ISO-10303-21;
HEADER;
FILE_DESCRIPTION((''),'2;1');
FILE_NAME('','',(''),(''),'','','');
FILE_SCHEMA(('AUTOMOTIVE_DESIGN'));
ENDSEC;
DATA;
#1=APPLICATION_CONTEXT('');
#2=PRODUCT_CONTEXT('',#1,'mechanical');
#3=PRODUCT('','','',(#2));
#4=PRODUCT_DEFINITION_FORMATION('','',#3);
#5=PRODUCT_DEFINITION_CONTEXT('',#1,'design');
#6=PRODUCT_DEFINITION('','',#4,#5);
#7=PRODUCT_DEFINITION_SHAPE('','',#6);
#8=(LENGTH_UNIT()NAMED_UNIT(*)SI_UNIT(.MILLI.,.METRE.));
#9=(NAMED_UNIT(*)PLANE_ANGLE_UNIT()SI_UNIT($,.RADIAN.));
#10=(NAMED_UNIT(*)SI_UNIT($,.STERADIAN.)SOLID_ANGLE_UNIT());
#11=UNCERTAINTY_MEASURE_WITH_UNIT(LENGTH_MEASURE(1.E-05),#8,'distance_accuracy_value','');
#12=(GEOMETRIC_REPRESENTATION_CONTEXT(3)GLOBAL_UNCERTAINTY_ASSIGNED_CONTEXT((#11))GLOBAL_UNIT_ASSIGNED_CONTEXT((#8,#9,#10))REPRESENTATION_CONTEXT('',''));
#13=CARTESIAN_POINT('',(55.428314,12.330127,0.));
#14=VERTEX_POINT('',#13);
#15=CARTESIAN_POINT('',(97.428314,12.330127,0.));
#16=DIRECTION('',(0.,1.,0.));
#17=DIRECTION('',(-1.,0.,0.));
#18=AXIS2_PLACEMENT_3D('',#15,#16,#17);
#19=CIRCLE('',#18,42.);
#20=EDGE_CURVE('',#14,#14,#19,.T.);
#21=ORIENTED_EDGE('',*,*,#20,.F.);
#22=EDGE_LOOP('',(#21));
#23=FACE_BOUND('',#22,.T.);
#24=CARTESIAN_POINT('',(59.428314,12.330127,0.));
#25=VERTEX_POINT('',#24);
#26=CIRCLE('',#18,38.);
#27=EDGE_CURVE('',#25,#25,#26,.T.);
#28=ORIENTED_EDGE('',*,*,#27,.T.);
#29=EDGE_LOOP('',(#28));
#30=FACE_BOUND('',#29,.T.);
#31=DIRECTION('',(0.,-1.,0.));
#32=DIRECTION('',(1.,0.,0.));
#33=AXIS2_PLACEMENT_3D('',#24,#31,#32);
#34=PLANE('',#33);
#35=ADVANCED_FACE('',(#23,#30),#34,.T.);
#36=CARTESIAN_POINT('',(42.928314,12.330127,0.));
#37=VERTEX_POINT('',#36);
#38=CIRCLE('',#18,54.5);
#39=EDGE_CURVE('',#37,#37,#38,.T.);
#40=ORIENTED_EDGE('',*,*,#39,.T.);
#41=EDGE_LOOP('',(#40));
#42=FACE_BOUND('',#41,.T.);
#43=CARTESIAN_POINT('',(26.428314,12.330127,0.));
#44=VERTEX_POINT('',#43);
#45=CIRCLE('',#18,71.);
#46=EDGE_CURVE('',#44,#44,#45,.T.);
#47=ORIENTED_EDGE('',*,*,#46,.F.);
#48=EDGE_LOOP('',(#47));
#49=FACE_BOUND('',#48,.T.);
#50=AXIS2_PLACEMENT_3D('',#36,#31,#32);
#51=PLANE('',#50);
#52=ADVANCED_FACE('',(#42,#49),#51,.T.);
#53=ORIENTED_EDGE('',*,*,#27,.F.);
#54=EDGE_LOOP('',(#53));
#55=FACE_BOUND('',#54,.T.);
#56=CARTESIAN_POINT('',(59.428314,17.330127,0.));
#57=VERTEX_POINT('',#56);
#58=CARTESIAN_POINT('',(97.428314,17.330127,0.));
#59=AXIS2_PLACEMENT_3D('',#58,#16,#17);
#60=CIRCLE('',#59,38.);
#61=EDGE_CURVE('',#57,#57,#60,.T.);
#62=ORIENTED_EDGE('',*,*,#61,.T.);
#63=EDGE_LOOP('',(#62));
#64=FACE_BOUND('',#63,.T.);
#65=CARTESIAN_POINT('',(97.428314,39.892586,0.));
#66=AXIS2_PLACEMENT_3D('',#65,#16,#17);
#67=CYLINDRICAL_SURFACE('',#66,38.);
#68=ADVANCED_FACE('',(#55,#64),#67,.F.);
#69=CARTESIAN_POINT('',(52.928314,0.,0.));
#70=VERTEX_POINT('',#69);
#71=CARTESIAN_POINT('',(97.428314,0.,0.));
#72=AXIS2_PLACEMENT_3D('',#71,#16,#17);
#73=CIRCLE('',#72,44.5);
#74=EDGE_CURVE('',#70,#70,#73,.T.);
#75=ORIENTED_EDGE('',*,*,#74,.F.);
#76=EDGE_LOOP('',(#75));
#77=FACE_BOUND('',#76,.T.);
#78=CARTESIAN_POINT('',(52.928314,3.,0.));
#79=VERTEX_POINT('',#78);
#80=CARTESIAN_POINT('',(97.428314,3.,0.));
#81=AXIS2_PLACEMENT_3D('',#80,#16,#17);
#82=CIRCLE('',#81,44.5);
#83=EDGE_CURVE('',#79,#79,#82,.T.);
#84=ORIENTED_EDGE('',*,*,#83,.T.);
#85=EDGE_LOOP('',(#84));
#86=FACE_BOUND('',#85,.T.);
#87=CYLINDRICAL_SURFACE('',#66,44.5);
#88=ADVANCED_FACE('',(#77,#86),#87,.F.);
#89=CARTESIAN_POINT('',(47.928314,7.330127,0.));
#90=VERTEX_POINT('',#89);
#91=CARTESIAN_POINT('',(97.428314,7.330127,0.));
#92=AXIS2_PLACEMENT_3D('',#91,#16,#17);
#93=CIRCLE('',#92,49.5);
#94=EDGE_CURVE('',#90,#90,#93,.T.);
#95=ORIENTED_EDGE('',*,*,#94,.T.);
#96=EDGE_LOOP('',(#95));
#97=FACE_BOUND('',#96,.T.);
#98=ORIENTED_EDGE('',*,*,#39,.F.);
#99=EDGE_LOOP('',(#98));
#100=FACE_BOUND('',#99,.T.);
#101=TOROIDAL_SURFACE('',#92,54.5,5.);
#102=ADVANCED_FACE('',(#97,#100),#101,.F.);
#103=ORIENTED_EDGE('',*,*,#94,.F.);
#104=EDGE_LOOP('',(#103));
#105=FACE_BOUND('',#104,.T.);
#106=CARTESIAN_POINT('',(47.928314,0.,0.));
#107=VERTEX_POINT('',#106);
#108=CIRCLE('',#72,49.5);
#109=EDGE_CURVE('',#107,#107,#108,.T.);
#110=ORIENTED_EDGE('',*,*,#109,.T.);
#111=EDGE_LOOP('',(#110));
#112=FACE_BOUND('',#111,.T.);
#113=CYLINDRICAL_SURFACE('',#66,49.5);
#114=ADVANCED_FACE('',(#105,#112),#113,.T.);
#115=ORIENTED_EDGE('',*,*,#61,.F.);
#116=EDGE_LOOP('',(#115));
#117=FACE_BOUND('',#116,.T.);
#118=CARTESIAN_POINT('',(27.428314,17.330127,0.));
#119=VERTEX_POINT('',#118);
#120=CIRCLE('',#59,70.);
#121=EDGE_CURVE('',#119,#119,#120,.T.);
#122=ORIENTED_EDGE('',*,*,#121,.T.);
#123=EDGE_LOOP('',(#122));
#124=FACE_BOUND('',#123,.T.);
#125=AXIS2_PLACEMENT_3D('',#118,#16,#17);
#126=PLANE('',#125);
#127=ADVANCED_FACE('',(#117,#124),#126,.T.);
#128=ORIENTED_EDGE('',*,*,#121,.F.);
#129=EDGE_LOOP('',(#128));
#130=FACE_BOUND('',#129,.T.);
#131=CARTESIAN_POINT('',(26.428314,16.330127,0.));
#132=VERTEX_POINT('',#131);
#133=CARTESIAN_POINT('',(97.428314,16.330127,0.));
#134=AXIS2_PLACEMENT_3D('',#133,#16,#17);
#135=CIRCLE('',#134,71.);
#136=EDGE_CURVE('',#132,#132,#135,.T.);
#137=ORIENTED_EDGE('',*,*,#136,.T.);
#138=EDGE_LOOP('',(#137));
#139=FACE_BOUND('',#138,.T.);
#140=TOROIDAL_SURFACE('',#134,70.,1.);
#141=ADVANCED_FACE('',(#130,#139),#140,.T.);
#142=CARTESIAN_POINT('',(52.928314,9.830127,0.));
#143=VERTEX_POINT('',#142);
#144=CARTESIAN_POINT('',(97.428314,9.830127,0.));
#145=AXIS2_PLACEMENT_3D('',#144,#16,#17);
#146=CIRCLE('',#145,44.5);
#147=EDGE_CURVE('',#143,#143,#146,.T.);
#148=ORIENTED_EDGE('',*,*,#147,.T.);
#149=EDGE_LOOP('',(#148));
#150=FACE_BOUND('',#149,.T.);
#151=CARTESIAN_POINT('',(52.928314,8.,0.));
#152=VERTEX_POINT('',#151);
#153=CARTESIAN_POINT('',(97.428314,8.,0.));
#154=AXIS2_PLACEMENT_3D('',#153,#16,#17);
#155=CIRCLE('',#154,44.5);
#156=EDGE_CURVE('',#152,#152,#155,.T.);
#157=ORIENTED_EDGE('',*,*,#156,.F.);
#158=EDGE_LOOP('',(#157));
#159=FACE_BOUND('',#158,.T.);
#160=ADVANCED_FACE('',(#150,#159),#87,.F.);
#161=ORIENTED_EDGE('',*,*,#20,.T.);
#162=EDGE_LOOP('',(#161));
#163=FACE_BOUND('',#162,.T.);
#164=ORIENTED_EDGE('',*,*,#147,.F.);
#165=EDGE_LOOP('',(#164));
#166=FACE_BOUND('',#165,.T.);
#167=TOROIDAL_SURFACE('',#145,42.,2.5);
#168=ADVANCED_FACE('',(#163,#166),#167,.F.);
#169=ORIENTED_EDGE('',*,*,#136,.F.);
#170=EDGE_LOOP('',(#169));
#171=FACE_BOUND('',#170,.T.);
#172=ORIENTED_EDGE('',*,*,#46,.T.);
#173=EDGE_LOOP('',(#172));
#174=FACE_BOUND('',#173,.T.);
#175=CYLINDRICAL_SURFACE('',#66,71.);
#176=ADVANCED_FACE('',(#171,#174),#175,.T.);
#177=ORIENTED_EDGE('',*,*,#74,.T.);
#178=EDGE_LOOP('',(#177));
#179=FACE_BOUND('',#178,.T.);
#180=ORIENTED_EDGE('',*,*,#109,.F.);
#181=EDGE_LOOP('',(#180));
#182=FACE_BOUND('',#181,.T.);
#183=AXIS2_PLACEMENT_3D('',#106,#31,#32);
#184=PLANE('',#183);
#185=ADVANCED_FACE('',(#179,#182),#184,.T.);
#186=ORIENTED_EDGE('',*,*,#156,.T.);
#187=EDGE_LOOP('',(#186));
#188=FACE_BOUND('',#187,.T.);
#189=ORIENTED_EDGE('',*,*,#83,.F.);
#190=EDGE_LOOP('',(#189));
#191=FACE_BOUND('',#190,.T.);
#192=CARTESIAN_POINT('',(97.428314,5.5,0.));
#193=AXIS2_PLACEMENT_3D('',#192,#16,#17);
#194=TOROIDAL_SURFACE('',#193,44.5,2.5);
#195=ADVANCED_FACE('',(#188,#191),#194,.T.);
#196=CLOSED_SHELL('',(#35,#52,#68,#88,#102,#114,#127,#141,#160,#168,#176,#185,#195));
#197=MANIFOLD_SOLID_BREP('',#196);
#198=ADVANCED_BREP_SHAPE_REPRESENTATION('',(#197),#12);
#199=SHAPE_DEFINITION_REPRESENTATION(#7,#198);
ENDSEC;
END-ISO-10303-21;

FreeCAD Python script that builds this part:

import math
import FreeCAD as App
import Part
import Sketcher

V = App.Vector
Q = App.Units.Quantity

doc = App.newDocument("Part")
body = doc.addObject("PartDesign::Body", "Body")

sketch1 = body.newObject("Sketcher::SketchObject", "Sketch")
sketch1.AttachmentSupport = (doc.getObject("XY_Plane"), [""])
sketch1.MapMode = "FlatFace"
sketch1.addGeometry(Part.LineSegment(V(26.4, 16.3, 0), V(26.4, 12.3, 0)), False)
sketch1.addGeometry(Part.LineSegment(V(26.4, 12.3, 0), V(42.9, 12.3, 0)), False)
sketch1.addGeometry(Part.ArcOfCircle(Part.Circle(V(42.9, 7.3, 0), V(0, 0, 1), 5), math.radians(0), math.radians(90)), False)
sketch1.addGeometry(Part.LineSegment(V(47.9, 7.3, 0), V(47.9, 0, 0)), False)
sketch1.addGeometry(Part.LineSegment(V(47.9, 0, 0), V(52.9, 0, 0)), False)
sketch1.addGeometry(Part.LineSegment(V(52.9, 0, 0), V(52.9, 3, 0)), False)
sketch1.addGeometry(Part.ArcOfCircle(Part.Circle(V(52.9, 5.5, 0), V(0, 0, 1), 2.5), math.radians(-90), math.radians(90)), False)
sketch1.addGeometry(Part.LineSegment(V(52.9, 8, 0), V(52.9, 9.8, 0)), False)
sketch1.addGeometry(Part.ArcOfCircle(Part.Circle(V(55.4, 9.8, 0), V(0, 0, 1), 2.5), math.radians(90), math.radians(180)), False)
sketch1.addGeometry(Part.LineSegment(V(55.4, 12.3, 0), V(59.4, 12.3, 0)), False)
sketch1.addGeometry(Part.LineSegment(V(59.4, 12.3, 0), V(59.4, 17.3, 0)), False)
sketch1.addGeometry(Part.LineSegment(V(59.4, 17.3, 0), V(27.4, 17.3, 0)), False)
sketch1.addGeometry(Part.ArcOfCircle(Part.Circle(V(27.4, 16.3, 0), V(0, 0, 1), 1), math.radians(90), math.radians(180)), False)
sketch1.addGeometry(Part.LineSegment(V(97.4, 17.3, 0), V(97.4, 0, 0)), True)
sketch1.addConstraint(Sketcher.Constraint("Coincident", 0, 2, 1, 1))
sketch1.addConstraint(Sketcher.Constraint("Tangent", 1, 2, 2, 2))
sketch1.addConstraint(Sketcher.Constraint("Tangent", 2, 1, 3, 1))
sketch1.addConstraint(Sketcher.Constraint("Coincident", 3, 2, 4, 1))
sketch1.addConstraint(Sketcher.Constraint("Coincident", 4, 2, 5, 1))
sketch1.addConstraint(Sketcher.Constraint("Coincident", 5, 2, 6, 1))
sketch1.addConstraint(Sketcher.Constraint("Coincident", 6, 2, 7, 1))
sketch1.addConstraint(Sketcher.Constraint("Tangent", 7, 2, 8, 2))
sketch1.addConstraint(Sketcher.Constraint("Tangent", 8, 1, 9, 1))
sketch1.addConstraint(Sketcher.Constraint("Coincident", 9, 2, 10, 1))
sketch1.addConstraint(Sketcher.Constraint("Coincident", 10, 2, 11, 1))
sketch1.addConstraint(Sketcher.Constraint("Tangent", 11, 2, 12, 1))
sketch1.addConstraint(Sketcher.Constraint("Tangent", 12, 2, 0, 1))
sketch1.addConstraint(Sketcher.Constraint("Vertical", 0))
sketch1.addConstraint(Sketcher.Constraint("Horizontal", 1))
sketch1.addConstraint(Sketcher.Constraint("Vertical", 3))
sketch1.addConstraint(Sketcher.Constraint("Horizontal", 4))
sketch1.addConstraint(Sketcher.Constraint("Vertical", 5))
sketch1.addConstraint(Sketcher.Constraint("Vertical", 7))
sketch1.addConstraint(Sketcher.Constraint("Horizontal", 9))
sketch1.addConstraint(Sketcher.Constraint("Vertical", 10))
sketch1.addConstraint(Sketcher.Constraint("Horizontal", 11))
sketch1.addConstraint(Sketcher.Constraint("Vertical", 13))
sketch1.addConstraint(Sketcher.Constraint("Equal", 6, 8))
sketch1.addConstraint(Sketcher.Constraint("PointOnObject", 3, 2, -1))
sketch1.addConstraint(Sketcher.Constraint("PointOnObject", 13, 2, -1))
sketch1.addConstraint(Sketcher.Constraint("Horizontal", 1, 2, 8, 1))
sketch1.addConstraint(Sketcher.Constraint("Horizontal", 11, 2, 13, 1))
sketch1.addConstraint(Sketcher.Constraint("Vertical", 6, 3, 4, 2))
sketch1.addConstraint(Sketcher.Constraint("Vertical", 5, 2, 6, 2))
sketch1.addConstraint(Sketcher.Constraint("Equal", 9, 0))
sketch1.addConstraint(Sketcher.Constraint("Equal", 4, 10))
sketch1.addConstraint(Sketcher.Constraint("Radius", 2, Q("5 mm")))
sketch1.addConstraint(Sketcher.Constraint("Radius", 12, Q("1 mm")))
sketch1.addConstraint(Sketcher.Constraint("Radius", 6, Q("2.5 mm")))
sketch1.addConstraint(Sketcher.Constraint("DistanceX", 4, 1, 4, 2, Q("5 mm")))
sketch1.addConstraint(Sketcher.Constraint("DistanceX", 11, 2, 11, 1, Q("32 mm")))
sketch1.addConstraint(Sketcher.Constraint("DistanceY", 5, 1, 5, 2, Q("3 mm")))
sketch1.addConstraint(Sketcher.Constraint("DistanceX", 10, 2, 13, 1, Q("38 mm")))
sketch1.addConstraint(Sketcher.Constraint("DistanceY", 3, 2, 3, 1, Q("7.330127 mm")))
sketch1.addConstraint(Sketcher.Constraint("DistanceX", -1, 1, 2, 3, Q("42.928314 mm")))
revolution = body.newObject("PartDesign::Revolution", "Revolution")
revolution.Profile = sketch1
revolution.ReferenceAxis = (sketch1, ["Axis0"])
revolution.Angle = 360

doc.recompute()
